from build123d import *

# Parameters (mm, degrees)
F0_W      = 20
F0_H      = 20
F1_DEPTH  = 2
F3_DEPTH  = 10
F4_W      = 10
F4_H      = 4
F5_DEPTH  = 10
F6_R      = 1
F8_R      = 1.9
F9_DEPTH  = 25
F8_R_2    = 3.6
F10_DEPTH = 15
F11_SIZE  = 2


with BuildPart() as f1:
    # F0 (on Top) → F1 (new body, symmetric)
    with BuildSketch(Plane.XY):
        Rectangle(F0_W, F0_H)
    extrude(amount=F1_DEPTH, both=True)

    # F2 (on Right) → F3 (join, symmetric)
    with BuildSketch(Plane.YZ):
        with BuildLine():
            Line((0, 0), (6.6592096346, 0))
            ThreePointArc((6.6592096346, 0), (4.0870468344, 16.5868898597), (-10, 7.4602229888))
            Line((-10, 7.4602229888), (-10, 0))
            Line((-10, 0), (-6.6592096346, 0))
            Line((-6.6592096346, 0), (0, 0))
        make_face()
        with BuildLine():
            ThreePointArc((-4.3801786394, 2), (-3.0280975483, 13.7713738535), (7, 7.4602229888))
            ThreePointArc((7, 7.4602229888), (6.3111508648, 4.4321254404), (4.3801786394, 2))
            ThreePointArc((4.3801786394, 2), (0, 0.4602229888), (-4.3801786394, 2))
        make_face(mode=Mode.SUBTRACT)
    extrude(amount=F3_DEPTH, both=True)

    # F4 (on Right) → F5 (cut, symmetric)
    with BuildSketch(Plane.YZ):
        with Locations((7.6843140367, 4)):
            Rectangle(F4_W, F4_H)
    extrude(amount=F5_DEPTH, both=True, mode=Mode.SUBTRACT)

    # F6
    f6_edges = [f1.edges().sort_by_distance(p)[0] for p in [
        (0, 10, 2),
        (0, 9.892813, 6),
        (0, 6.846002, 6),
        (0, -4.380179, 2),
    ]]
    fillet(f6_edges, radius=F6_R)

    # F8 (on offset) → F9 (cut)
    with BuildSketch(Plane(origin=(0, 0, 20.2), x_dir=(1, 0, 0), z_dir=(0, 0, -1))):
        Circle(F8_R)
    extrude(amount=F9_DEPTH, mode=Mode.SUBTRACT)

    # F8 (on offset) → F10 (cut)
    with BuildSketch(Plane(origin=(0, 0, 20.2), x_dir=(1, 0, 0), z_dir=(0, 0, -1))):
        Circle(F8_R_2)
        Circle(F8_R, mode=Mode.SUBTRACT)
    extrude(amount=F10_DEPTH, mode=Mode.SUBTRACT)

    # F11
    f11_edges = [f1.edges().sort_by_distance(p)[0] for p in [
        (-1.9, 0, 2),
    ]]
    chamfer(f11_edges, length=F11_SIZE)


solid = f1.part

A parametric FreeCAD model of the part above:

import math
import FreeCAD as App
import Part
import Sketcher


def edges_at(feature, points):
    """Names of the edges that pass closest to the given points."""
    edges = feature.Shape.Edges
    near = lambda p: min(range(len(edges)), key=lambda i: edges[i].distToShape(Part.Vertex(*p))[0])
    return sorted({f"Edge{near(p) + 1}" for p in points})

doc = App.newDocument("Part")
body = doc.addObject("PartDesign::Body", "Body")

# Sketch on XY plane
sketch1 = doc.addObject("Sketcher::SketchObject", "Sketch")
body.addObject(sketch1)
sketch1.AttachmentSupport = (doc.XY_Plane, [""])
sketch1.MapMode = "FlatFace"
sketch1.addGeometry([
    Part.LineSegment(App.Vector(-10, 10, 0), App.Vector(-10, -10, 0)),
    Part.LineSegment(App.Vector(-10, -10, 0), App.Vector(10, -10, 0)),
    Part.LineSegment(App.Vector(10, -10, 0), App.Vector(10, 10, 0)),
    Part.LineSegment(App.Vector(10, 10, 0), App.Vector(-10, 10, 0)),
], False)
sketch1.addConstraint([
    Sketcher.Constraint("Coincident", 0, 2, 1, 1),
    Sketcher.Constraint("Coincident", 1, 2, 2, 1),
    Sketcher.Constraint("Coincident", 2, 2, 3, 1),
    Sketcher.Constraint("Coincident", 3, 2, 0, 1),
    Sketcher.Constraint("Vertical", 0),
    Sketcher.Constraint("Horizontal", 1),
    Sketcher.Constraint("Vertical", 2),
    Sketcher.Constraint("Horizontal", 3),
    Sketcher.Constraint("Symmetric", 0, 2, 2, 2, -1, 1),
    Sketcher.Constraint("Equal", 3, 0),
    Sketcher.Constraint("DistanceX", 1, 1, 1, 2, 20.0),
])
pad1 = doc.addObject("PartDesign::Pad", "Pad")
body.addObject(pad1)
pad1.Profile = sketch1
pad1.Length = 4
pad1.Midplane = True

# Sketch on YZ plane
sketch2 = doc.addObject("Sketcher::SketchObject", "Sketch001")
body.addObject(sketch2)
sketch2.AttachmentSupport = (doc.YZ_Plane, [""])
sketch2.MapMode = "FlatFace"
sketch2.addGeometry([
    Part.ArcOfCircle(Part.Circle(App.Vector(0, 7, 0), App.Vector(0, 0, 1), 10), math.radians(-48), math.radians(180)),  # 0
    Part.LineSegment(App.Vector(-10, 7, 0), App.Vector(-10, 0, 0)),  # 1
    Part.LineSegment(App.Vector(-10, 0, 0), App.Vector(7, 0, 0)),  # 2
    Part.ArcOfCircle(Part.Circle(App.Vector(0, 7, 0), App.Vector(0, 0, 1), 7), math.radians(-129), math.radians(-51)),  # 3
    Part.ArcOfCircle(Part.Circle(App.Vector(0, 7, 0), App.Vector(0, 0, 1), 7), math.radians(0), math.radians(231)),  # 4
    Part.ArcOfCircle(Part.Circle(App.Vector(0, 7, 0), App.Vector(0, 0, 1), 7), math.radians(-51), math.radians(0)),  # 5
], False)
sketch2.addConstraint([
    Sketcher.Constraint("Tangent", 0, 2, 1, 1),
    Sketcher.Constraint("Coincident", 1, 2, 2, 1),
    Sketcher.Constraint("Coincident", 2, 2, 0, 1),
    Sketcher.Constraint("Tangent", 3, 1, 4, 2),
    Sketcher.Constraint("Tangent", 4, 1, 5, 2),
    Sketcher.Constraint("Tangent", 5, 1, 3, 2),
    Sketcher.Constraint("Vertical", 1),
    Sketcher.Constraint("Horizontal", 2),
    Sketcher.Constraint("Coincident", 3, 3, 0, 3),
    Sketcher.Constraint("Symmetric", 3, 1, 5, 1, -2),
    Sketcher.Constraint("PointOnObject", 1, 2, -1),
    Sketcher.Constraint("Horizontal", 0, 2, 4, 1),
    Sketcher.Constraint("Radius", 0, 10.0),
    Sketcher.Constraint("Radius", 3, 7.0),
    Sketcher.Constraint("DistanceY", -1, 1, 3, 1, 2.0),
    Sketcher.Constraint("DistanceX", 2, 1, 2, 2, 16.65921),
])
pad2 = doc.addObject("PartDesign::Pad", "Pad001")
body.addObject(pad2)
pad2.Profile = sketch2
pad2.Length = 20
pad2.Midplane = True

# Sketch on YZ plane
sketch3 = doc.addObject("Sketcher::SketchObject", "Sketch002")
body.addObject(sketch3)
sketch3.AttachmentSupport = (doc.YZ_Plane, [""])
sketch3.MapMode = "FlatFace"
sketch3.addGeometry([
    Part.LineSegment(App.Vector(2.7, 6, 0), App.Vector(2.7, 2, 0)),
    Part.LineSegment(App.Vector(2.7, 2, 0), App.Vector(12.7, 2, 0)),
    Part.LineSegment(App.Vector(12.7, 2, 0), App.Vector(12.7, 6, 0)),
    Part.LineSegment(App.Vector(12.7, 6, 0), App.Vector(2.7, 6, 0)),
], False)
sketch3.addConstraint([
    Sketcher.Constraint("Coincident", 0, 2, 1, 1),
    Sketcher.Constraint("Coincident", 1, 2, 2, 1),
    Sketcher.Constraint("Coincident", 2, 2, 3, 1),
    Sketcher.Constraint("Coincident", 3, 2, 0, 1),
    Sketcher.Constraint("Vertical", 0),
    Sketcher.Constraint("Horizontal", 1),
    Sketcher.Constraint("Vertical", 2),
    Sketcher.Constraint("Horizontal", 3),
    Sketcher.Constraint("DistanceX", 1, 1, 1, 2, 10.0),
    Sketcher.Constraint("DistanceY", 0, 2, 0, 1, 4.0),
    Sketcher.Constraint("DistanceY", -1, 1, 0, 2, 2.0),
    Sketcher.Constraint("DistanceX", -1, 1, 0, 2, 2.684314),
])
pocket1 = doc.addObject("PartDesign::Pocket", "Pocket")
body.addObject(pocket1)
pocket1.Profile = sketch3
pocket1.Length = 20
pocket1.Midplane = True
doc.recompute()

fillet = doc.addObject("PartDesign::Fillet", "Fillet")
body.addObject(fillet)
fillet.Base = (pocket1, edges_at(pocket1, [
    (0, 10, 2),
    (0, 9.893, 6),
    (0, 6.846, 6),
    (0, -4.38, 2),
]))
fillet.Radius = 1

# Sketch on XY plane
sketch4 = doc.addObject("Sketcher::SketchObject", "Sketch003")
body.addObject(sketch4)
sketch4.AttachmentSupport = (doc.XY_Plane, [""])
sketch4.MapMode = "FlatFace"
sketch4.AttachmentOffset = App.Placement(App.Vector(0, 0, 20.2), App.Rotation())
sketch4.addGeometry(Part.Circle(App.Vector(0, 0, 0), App.Vector(0, 0, 1), 1.9), False)
sketch4.addConstraint([
    Sketcher.Constraint("Coincident", 0, 3, -1, 1),
    Sketcher.Constraint("Diameter", 0, 3.8),
])
pocket2 = doc.addObject("PartDesign::Pocket", "Pocket001")
body.addObject(pocket2)
pocket2.Profile = sketch4
pocket2.Length = 25

# Sketch on XY plane
sketch5 = doc.addObject("Sketcher::SketchObject", "Sketch004")
body.addObject(sketch5)
sketch5.AttachmentSupport = (doc.XY_Plane, [""])
sketch5.MapMode = "FlatFace"
sketch5.AttachmentOffset = App.Placement(App.Vector(0, 0, 20.2), App.Rotation())
sketch5.addGeometry([
    Part.Circle(App.Vector(0, 0, 0), App.Vector(0, 0, 1), 3.6),
    Part.Circle(App.Vector(0, 0, 0), App.Vector(0, 0, 1), 1.9),
], False)
sketch5.addConstraint([
    Sketcher.Constraint("Coincident", 0, 3, -1, 1),
    Sketcher.Constraint("Coincident", 1, 3, -1, 1),
    Sketcher.Constraint("Diameter", 0, 7.2),
    Sketcher.Constraint("Diameter", 1, 3.8),
])
pocket3 = doc.addObject("PartDesign::Pocket", "Pocket002")
body.addObject(pocket3)
pocket3.Profile = sketch5
pocket3.Length = 15
doc.recompute()

chamfer = doc.addObject("PartDesign::Chamfer", "Chamfer")
body.addObject(chamfer)
chamfer.Base = (pocket3, edges_at(pocket3, [(-1.9, 0, 2)]))
chamfer.Size = 2

doc.recompute()
